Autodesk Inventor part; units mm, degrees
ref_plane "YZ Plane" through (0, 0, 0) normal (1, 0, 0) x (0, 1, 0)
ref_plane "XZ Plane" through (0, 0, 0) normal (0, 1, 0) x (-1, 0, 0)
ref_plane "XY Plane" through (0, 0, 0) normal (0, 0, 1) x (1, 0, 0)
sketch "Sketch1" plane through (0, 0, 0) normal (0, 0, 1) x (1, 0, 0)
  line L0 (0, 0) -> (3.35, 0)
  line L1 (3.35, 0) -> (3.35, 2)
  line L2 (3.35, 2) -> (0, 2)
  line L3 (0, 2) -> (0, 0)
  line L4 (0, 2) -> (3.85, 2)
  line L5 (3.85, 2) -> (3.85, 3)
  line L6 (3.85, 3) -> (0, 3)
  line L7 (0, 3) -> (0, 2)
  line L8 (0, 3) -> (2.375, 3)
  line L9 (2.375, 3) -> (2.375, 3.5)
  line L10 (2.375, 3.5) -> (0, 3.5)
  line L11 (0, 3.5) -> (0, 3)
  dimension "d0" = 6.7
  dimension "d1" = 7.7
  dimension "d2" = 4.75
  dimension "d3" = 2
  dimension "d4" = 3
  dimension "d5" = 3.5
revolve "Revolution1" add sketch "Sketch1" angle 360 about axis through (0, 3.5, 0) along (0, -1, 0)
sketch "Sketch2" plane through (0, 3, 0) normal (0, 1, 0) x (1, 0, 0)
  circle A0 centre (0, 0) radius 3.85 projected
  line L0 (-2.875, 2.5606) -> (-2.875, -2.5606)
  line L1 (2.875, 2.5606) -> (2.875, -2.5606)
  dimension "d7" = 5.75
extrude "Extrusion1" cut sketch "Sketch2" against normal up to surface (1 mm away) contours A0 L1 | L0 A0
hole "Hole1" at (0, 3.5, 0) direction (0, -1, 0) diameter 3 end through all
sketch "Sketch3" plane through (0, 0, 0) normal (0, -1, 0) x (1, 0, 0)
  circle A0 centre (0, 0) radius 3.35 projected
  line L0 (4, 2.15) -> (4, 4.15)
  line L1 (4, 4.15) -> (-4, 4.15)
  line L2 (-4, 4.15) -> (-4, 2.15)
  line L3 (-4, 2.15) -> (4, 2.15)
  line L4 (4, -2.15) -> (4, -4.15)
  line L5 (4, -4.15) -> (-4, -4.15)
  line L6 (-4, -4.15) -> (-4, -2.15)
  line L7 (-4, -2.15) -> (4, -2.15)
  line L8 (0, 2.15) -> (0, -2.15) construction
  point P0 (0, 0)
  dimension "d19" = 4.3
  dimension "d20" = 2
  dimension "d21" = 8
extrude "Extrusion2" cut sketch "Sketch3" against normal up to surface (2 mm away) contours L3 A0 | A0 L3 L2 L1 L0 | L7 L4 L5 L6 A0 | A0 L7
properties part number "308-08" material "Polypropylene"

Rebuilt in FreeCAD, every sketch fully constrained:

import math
import FreeCAD as App
import Part
import Sketcher
from FreeCAD import Vector

doc = App.newDocument("Part")
body = doc.addObject("PartDesign::Body", "Body")

sketch1 = doc.addObject("Sketcher::SketchObject", "Sketch")
body.addObject(sketch1)
sketch1.AttachmentSupport = (doc.XY_Plane, [""])
sketch1.MapMode = "FlatFace"
sketch1.addGeometry([
    Part.LineSegment(Vector(0, 0, 0), Vector(3.4, 0, 0)),
    Part.LineSegment(Vector(3.4, 0, 0), Vector(3.4, 2, 0)),
    Part.LineSegment(Vector(3.4, 2, 0), Vector(3.9, 2, 0)),
    Part.LineSegment(Vector(3.9, 2, 0), Vector(3.9, 3, 0)),
    Part.LineSegment(Vector(3.9, 3, 0), Vector(2.4, 3, 0)),
    Part.LineSegment(Vector(2.4, 3, 0), Vector(2.4, 3.5, 0)),
    Part.LineSegment(Vector(2.4, 3.5, 0), Vector(0, 3.5, 0)),
    Part.LineSegment(Vector(0, 3.5, 0), Vector(0, 0, 0)),
], False)
sketch1.addConstraint([
    Sketcher.Constraint("Coincident", 0, 2, 1, 1),
    Sketcher.Constraint("Coincident", 1, 2, 2, 1),
    Sketcher.Constraint("Coincident", 2, 2, 3, 1),
    Sketcher.Constraint("Coincident", 3, 2, 4, 1),
    Sketcher.Constraint("Coincident", 4, 2, 5, 1),
    Sketcher.Constraint("Coincident", 5, 2, 6, 1),
    Sketcher.Constraint("Coincident", 6, 2, 7, 1),
    Sketcher.Constraint("Coincident", 7, 2, 0, 1),
    Sketcher.Constraint("Horizontal", 0),
    Sketcher.Constraint("Vertical", 1),
    Sketcher.Constraint("Horizontal", 2),
    Sketcher.Constraint("Vertical", 3),
    Sketcher.Constraint("Horizontal", 4),
    Sketcher.Constraint("Vertical", 5),
    Sketcher.Constraint("Horizontal", 6),
    Sketcher.Constraint("Vertical", 7),
    Sketcher.Constraint("Coincident", 7, 2, -1, 1),
    Sketcher.Constraint("Equal", 2, 5),
    Sketcher.Constraint("DistanceY", 1, 1, 1, 2, 2.0),
    Sketcher.Constraint("DistanceY", 7, 2, 7, 1, 3.5),
    Sketcher.Constraint("DistanceY", -1, 1, 3, 2, 3.0),
    Sketcher.Constraint("DistanceX", 0, 1, 0, 2, 3.35),
    Sketcher.Constraint("DistanceX", 4, 2, 4, 1, 1.475),
])
revolution = doc.addObject("PartDesign::Revolution", "Revolution")
body.addObject(revolution)
revolution.Profile = sketch1
revolution.ReferenceAxis = (sketch1, ["V_Axis"])
revolution.Angle = 360

sketch2 = doc.addObject("Sketcher::SketchObject", "Sketch001")
body.addObject(sketch2)
sketch2.AttachmentSupport = (doc.XZ_Plane, [""])
sketch2.MapMode = "FlatFace"
sketch2.AttachmentOffset = App.Placement(Vector(0, 0, -3), App.Rotation())
sketch2.addGeometry([
    Part.ArcOfCircle(Part.Circle(Vector(0, 0, 0), Vector(0, 0, 1), 3.9), math.radians(-42), math.radians(42)),
    Part.LineSegment(Vector(2.9, 2.6, 0), Vector(2.9, -2.6, 0)),
    Part.LineSegment(Vector(-2.9, 2.6, 0), Vector(-2.9, -2.6, 0)),
    Part.ArcOfCircle(Part.Circle(Vector(0, 0, 0), Vector(0, 0, 1), 3.9), math.radians(138), math.radians(222)),
], False)
sketch2.addConstraint([
    Sketcher.Constraint("Coincident", 0, 1, 1, 2),
    Sketcher.Constraint("Coincident", 1, 1, 0, 2),
    Sketcher.Constraint("Coincident", 2, 1, 3, 1),
    Sketcher.Constraint("Coincident", 3, 2, 2, 2),
    Sketcher.Constraint("Vertical", 1),
    Sketcher.Constraint("Vertical", 2),
    Sketcher.Constraint("Coincident", 0, 3, -1, 1),
    Sketcher.Constraint("Coincident", 3, 3, -1, 1),
    Sketcher.Constraint("Equal", 0, 3),
    Sketcher.Constraint("Horizontal", 1, 1, 2, 1),
    Sketcher.Constraint("Radius", 0, 3.85),
    Sketcher.Constraint("DistanceX", 2, 1, 1, 1, 5.75),
])
pocket1 = doc.addObject("PartDesign::Pocket", "Pocket")
body.addObject(pocket1)
pocket1.Profile = sketch2
pocket1.Length = 1
pocket1.Reversed = True

sketch3 = doc.addObject("Sketcher::SketchObject", "Sketch002")
body.addObject(sketch3)
sketch3.AttachmentSupport = (doc.XZ_Plane, [""])
sketch3.MapMode = "FlatFace"
sketch3.AttachmentOffset = App.Placement(Vector(0, 0, -3.5), App.Rotation())
sketch3.addGeometry(Part.Circle(Vector(0, 0, 0), Vector(0, 0, 1), 1.5), False)
sketch3.addConstraint([
    Sketcher.Constraint("Coincident", 0, 3, -1, 1),
    Sketcher.Constraint("Diameter", 0, 3.0),
])
doc.recompute()
hole = doc.addObject("PartDesign::Hole", "Hole")
body.addObject(hole)
hole.Profile = sketch3
hole.ThreadType = "None"
hole.Diameter = 3
hole.DepthType = "ThroughAll"
hole.Reversed = True

sketch4 = doc.addObject("Sketcher::SketchObject", "Sketch003")
body.addObject(sketch4)
sketch4.AttachmentSupport = (doc.XZ_Plane, [""])
sketch4.MapMode = "FlatFace"
sketch4.addGeometry([
    Part.LineSegment(Vector(4, 2.1, 0), Vector(4, 4.2, 0)),
    Part.LineSegment(Vector(4, 4.2, 0), Vector(-4, 4.2, 0)),
    Part.LineSegment(Vector(-4, 4.2, 0), Vector(-4, 2.1, 0)),
    Part.LineSegment(Vector(-4, 2.1, 0), Vector(4, 2.1, 0)),
    Part.LineSegment(Vector(4, -2.1, 0), Vector(-4, -2.1, 0)),
    Part.LineSegment(Vector(-4, -2.1, 0), Vector(-4, -4.2, 0)),
    Part.LineSegment(Vector(-4, -4.2, 0), Vector(4, -4.2, 0)),
    Part.LineSegment(Vector(4, -4.2, 0), Vector(4, -2.1, 0)),
], False)
sketch4.addConstraint([
    Sketcher.Constraint("Coincident", 0, 2, 1, 1),
    Sketcher.Constraint("Coincident", 1, 2, 2, 1),
    Sketcher.Constraint("Coincident", 2, 2, 3, 1),
    Sketcher.Constraint("Coincident", 3, 2, 0, 1),
    Sketcher.Constraint("Coincident", 4, 2, 5, 1),
    Sketcher.Constraint("Coincident", 5, 2, 6, 1),
    Sketcher.Constraint("Coincident", 6, 2, 7, 1),
    Sketcher.Constraint("Coincident", 7, 2, 4, 1),
    Sketcher.Constraint("Vertical", 0),
    Sketcher.Constraint("Horizontal", 1),
    Sketcher.Constraint("Vertical", 2),
    Sketcher.Constraint("Horizontal", 3),
    Sketcher.Constraint("Horizontal", 4),
    Sketcher.Constraint("Vertical", 5),
    Sketcher.Constraint("Horizontal", 6),
    Sketcher.Constraint("Vertical", 7),
    Sketcher.Constraint("Symmetric", 3, 2, 4, 2, -1, 1),
    Sketcher.Constraint("Symmetric", 1, 2, 6, 2, -1, 1),
    Sketcher.Constraint("Vertical", 2, 2, 4, 2),
    Sketcher.Constraint("DistanceX", 1, 2, 1, 1, 8.0),
    Sketcher.Constraint("DistanceY", 0, 1, 0, 2, 2.0),
    Sketcher.Constraint("DistanceY", 4, 2, 2, 2, 4.3),
])
pocket2 = doc.addObject("PartDesign::Pocket", "Pocket001")
body.addObject(pocket2)
pocket2.Profile = sketch4
pocket2.Length = 2

doc.recompute()
